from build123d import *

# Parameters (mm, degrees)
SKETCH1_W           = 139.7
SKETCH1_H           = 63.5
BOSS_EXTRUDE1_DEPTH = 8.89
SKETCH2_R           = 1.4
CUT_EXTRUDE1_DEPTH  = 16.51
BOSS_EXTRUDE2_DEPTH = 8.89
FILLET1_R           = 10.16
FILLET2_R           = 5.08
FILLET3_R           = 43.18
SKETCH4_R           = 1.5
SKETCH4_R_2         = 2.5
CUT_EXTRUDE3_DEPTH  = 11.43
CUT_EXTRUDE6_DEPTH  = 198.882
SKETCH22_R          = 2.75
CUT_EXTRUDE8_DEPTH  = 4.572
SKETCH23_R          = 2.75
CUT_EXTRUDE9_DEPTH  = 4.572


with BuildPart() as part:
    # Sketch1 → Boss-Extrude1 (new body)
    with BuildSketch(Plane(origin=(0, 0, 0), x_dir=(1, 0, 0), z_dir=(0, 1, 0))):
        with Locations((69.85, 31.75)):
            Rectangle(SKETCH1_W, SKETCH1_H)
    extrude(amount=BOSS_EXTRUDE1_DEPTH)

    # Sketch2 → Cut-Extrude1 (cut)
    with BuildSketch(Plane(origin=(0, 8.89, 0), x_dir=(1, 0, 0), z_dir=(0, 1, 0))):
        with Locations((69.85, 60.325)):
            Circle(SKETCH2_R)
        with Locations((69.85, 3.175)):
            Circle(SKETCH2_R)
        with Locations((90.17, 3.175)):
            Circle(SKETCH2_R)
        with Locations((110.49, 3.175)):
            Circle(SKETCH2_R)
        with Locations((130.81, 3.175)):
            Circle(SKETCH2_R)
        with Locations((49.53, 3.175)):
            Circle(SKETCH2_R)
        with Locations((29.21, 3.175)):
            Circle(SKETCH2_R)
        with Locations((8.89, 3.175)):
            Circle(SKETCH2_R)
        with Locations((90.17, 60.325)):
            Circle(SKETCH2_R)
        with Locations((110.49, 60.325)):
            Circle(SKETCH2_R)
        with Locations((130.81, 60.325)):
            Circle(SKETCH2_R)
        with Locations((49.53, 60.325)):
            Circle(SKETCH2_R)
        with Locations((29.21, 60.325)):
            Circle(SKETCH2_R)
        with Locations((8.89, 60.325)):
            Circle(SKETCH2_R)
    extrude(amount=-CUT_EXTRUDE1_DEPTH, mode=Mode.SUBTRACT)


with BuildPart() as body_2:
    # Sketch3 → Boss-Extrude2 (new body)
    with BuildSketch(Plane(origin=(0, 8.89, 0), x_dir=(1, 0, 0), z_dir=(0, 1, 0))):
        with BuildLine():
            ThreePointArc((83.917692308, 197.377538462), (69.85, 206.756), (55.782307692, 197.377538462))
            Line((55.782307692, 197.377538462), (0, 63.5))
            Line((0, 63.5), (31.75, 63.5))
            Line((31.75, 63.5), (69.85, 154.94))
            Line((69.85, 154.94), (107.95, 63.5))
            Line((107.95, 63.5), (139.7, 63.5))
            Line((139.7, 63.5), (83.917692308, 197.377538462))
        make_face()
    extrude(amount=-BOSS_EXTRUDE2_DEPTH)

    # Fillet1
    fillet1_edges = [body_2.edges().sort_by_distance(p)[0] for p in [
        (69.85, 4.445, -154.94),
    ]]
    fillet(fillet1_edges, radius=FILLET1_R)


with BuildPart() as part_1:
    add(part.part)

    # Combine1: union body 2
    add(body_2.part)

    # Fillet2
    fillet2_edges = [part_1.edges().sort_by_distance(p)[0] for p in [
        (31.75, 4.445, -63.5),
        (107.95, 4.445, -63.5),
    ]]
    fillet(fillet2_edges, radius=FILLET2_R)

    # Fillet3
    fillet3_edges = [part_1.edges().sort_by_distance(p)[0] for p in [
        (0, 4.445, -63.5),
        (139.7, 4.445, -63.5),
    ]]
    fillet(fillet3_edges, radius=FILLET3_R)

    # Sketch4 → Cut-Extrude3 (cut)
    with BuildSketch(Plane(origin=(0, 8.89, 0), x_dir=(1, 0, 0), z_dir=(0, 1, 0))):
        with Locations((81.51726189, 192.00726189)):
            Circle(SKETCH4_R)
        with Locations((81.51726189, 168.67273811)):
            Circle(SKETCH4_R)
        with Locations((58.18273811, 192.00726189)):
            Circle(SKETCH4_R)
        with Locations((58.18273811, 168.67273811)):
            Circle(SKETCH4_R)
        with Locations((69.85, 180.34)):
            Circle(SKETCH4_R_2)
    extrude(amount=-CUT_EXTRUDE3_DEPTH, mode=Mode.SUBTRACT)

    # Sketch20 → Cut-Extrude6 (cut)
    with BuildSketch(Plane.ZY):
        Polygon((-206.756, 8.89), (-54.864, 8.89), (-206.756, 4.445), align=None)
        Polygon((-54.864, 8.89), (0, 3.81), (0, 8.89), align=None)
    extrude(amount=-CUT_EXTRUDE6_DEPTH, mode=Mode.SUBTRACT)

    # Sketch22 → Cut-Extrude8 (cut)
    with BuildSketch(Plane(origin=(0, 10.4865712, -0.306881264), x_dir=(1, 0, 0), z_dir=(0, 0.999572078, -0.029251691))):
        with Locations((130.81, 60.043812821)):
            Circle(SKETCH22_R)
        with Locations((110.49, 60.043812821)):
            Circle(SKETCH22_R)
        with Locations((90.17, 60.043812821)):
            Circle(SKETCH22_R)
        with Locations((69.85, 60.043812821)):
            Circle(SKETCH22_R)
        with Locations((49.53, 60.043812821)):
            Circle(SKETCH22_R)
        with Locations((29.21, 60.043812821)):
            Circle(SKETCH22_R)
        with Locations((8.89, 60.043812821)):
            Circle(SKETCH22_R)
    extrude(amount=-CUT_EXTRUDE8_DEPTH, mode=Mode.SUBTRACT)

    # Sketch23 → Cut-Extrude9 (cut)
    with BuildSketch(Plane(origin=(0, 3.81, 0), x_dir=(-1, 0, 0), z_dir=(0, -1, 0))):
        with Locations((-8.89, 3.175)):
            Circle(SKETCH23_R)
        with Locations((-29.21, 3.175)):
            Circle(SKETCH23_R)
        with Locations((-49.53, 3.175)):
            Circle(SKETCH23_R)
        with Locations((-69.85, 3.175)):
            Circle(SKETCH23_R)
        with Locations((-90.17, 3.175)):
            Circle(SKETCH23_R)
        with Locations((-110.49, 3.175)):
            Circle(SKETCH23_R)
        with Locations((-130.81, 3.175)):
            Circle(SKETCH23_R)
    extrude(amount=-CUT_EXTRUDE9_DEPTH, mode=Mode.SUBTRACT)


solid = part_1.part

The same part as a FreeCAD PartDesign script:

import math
import FreeCAD as App
import Part
import Sketcher

V = App.Vector
Q = App.Units.Quantity


def edges_at(feature, points):
    """Names of the edges that pass closest to the given points."""
    edges = feature.Shape.Edges
    near = lambda p: min(range(len(edges)), key=lambda i: edges[i].distToShape(Part.Vertex(*p))[0])
    return sorted({f"Edge{near(p) + 1}" for p in points})


def add_polygon(sketch, points):
    """Adds a closed chain of lines whose ends are joined by coincident constraints."""
    first, n = sketch.GeometryCount, len(points)
    for a, b in zip(points, points[1:] + points[:1]):
        sketch.addGeometry(Part.LineSegment(App.Vector(*a, 0), App.Vector(*b, 0)), False)
    for i in range(n):
        sketch.addConstraint(Sketcher.Constraint("Coincident", first + i, 2, first + (i + 1) % n, 1))

doc = App.newDocument("Part")
body = doc.addObject("PartDesign::Body", "Body")

sketch1 = body.newObject("Sketcher::SketchObject", "Sketch")
sketch1.AttachmentSupport = (doc.getObject("XZ_Plane"), [""])
sketch1.MapMode = "FlatFace"
add_polygon(sketch1, [(0, -64), (0, 0), (140, 0), (140, -64)])
sketch1.addConstraint([
    Sketcher.Constraint("Vertical", 0),
    Sketcher.Constraint("Horizontal", 1),
    Sketcher.Constraint("Vertical", 2),
    Sketcher.Constraint("Horizontal", 3),
    Sketcher.Constraint("Coincident", 0, 2, -1, 1),
    Sketcher.Constraint("DistanceX", 1, 1, 1, 2, Q("5.5 in")),
    Sketcher.Constraint("DistanceY", 0, 1, 0, 2, Q("2.5 in")),
])
pad1 = body.newObject("PartDesign::Pad", "Pad")
pad1.Profile = sketch1
pad1.Length = Q("0.35 in")
pad1.Reversed = True

sketch2 = body.newObject("Sketcher::SketchObject", "Sketch001")
sketch2.AttachmentSupport = (doc.getObject("XZ_Plane"), [""])
sketch2.MapMode = "FlatFace"
sketch2.AttachmentOffset = App.Placement(V(0, 0, -0.35 * 25.4), App.Rotation())
sketch2.addGeometry([
    Part.Circle(V(69.8, -60.3, 0), V(0, 0, 1), 1.4),
    Part.Circle(V(69.8, -3.2, 0), V(0, 0, 1), 1.4),
    Part.Circle(V(90.2, -3.2, 0), V(0, 0, 1), 1.4),
    Part.Circle(V(110.5, -3.2, 0), V(0, 0, 1), 1.4),
    Part.Circle(V(130.8, -3.2, 0), V(0, 0, 1), 1.4),
    Part.Circle(V(49.5, -3.2, 0), V(0, 0, 1), 1.4),
    Part.Circle(V(29.2, -3.2, 0), V(0, 0, 1), 1.4),
    Part.Circle(V(8.9, -3.2, 0), V(0, 0, 1), 1.4),
    Part.Circle(V(90.2, -60.3, 0), V(0, 0, 1), 1.4),
    Part.Circle(V(110.5, -60.3, 0), V(0, 0, 1), 1.4),
    Part.Circle(V(130.8, -60.3, 0), V(0, 0, 1), 1.4),
    Part.Circle(V(49.5, -60.3, 0), V(0, 0, 1), 1.4),
    Part.Circle(V(29.2, -60.3, 0), V(0, 0, 1), 1.4),
    Part.Circle(V(8.9, -60.3, 0), V(0, 0, 1), 1.4),
], False)
sketch2.addConstraint([
    Sketcher.Constraint("Equal", 0, 1),
    Sketcher.Constraint("Equal", 1, 2),
    Sketcher.Constraint("Equal", 2, 3),
    Sketcher.Constraint("Equal", 3, 4),
    Sketcher.Constraint("Equal", 4, 5),
    Sketcher.Constraint("Equal", 5, 6),
    Sketcher.Constraint("Equal", 6, 7),
    Sketcher.Constraint("Equal", 7, 8),
    Sketcher.Constraint("Equal", 8, 9),
    Sketcher.Constraint("Equal", 9, 10),
    Sketcher.Constraint("Equal", 10, 11),
    Sketcher.Constraint("Equal", 11, 12),
    Sketcher.Constraint("Equal", 12, 13),
    Sketcher.Constraint("Horizontal", 1, 3, 2, 3),
    Sketcher.Constraint("Horizontal", 2, 3, 3, 3),
    Sketcher.Constraint("Horizontal", 3, 3, 4, 3),
    Sketcher.Constraint("Horizontal", 4, 3, 5, 3),
    Sketcher.Constraint("Horizontal", 5, 3, 6, 3),
    Sketcher.Constraint("Horizontal", 6, 3, 7, 3),
    Sketcher.Constraint("Horizontal", 0, 3, 8, 3),
    Sketcher.Constraint("Horizontal", 8, 3, 9, 3),
    Sketcher.Constraint("Horizontal", 9, 3, 10, 3),
    Sketcher.Constraint("Horizontal", 10, 3, 11, 3),
    Sketcher.Constraint("Horizontal", 11, 3, 12, 3),
    Sketcher.Constraint("Horizontal", 12, 3, 13, 3),
    Sketcher.Constraint("Vertical", 0, 3, 1, 3),
    Sketcher.Constraint("Vertical", 2, 3, 8, 3),
    Sketcher.Constraint("Vertical", 3, 3, 9, 3),
    Sketcher.Constraint("Vertical", 4, 3, 10, 3),
    Sketcher.Constraint("Vertical", 5, 3, 11, 3),
    Sketcher.Constraint("Vertical", 6, 3, 12, 3),
    Sketcher.Constraint("Vertical", 7, 3, 13, 3),
    Sketcher.Constraint("DistanceX", 1, 3, 2, 3, Q("0.8 in")),
    Sketcher.Constraint("DistanceX", 2, 3, 3, 3, Q("0.8 in")),
    Sketcher.Constraint("DistanceX", 3, 3, 4, 3, Q("0.8 in")),
    Sketcher.Constraint("DistanceX", 5, 3, 1, 3, Q("0.8 in")),
    Sketcher.Constraint("DistanceX", 6, 3, 5, 3, Q("0.8 in")),
    Sketcher.Constraint("DistanceX", 7, 3, 6, 3, Q("0.8 in")),
    Sketcher.Constraint("Diameter", 0, Q("2.8 mm")),
    Sketcher.Constraint("DistanceX", -1, 1, 0, 3, Q("2.75 in")),
    Sketcher.Constraint("DistanceY", 0, 3, 1, 3, Q("2.25 in")),
    Sketcher.Constraint("DistanceY", 0, 3, -1, 1, Q("2.375 in")),
])
pocket1 = body.newObject("PartDesign::Pocket", "Pocket")
pocket1.Profile = sketch2
pocket1.Length = Q("0.65 in")
pocket1.Reversed = True
body2 = doc.addObject("PartDesign::Body", "Body001")

sketch3 = body2.newObject("Sketcher::SketchObject", "Sketch002")
sketch3.AttachmentSupport = (doc.getObject("XZ_Plane001"), [""])
sketch3.MapMode = "FlatFace"
sketch3.AttachmentOffset = App.Placement(V(0, 0, -0.35 * 25.4), App.Rotation())
sketch3.addGeometry([
    Part.ArcOfCircle(Part.Circle(V(70, -192, 0), V(0, 0, 1), 15), math.radians(-157), math.radians(-23)),
    Part.LineSegment(V(56, -197, 0), V(0, -64, 0)),
    Part.LineSegment(V(0, -64, 0), V(32, -64, 0)),
    Part.LineSegment(V(32, -64, 0), V(70, -155, 0)),
    Part.LineSegment(V(70, -155, 0), V(108, -64, 0)),
    Part.LineSegment(V(108, -64, 0), V(140, -64, 0)),
    Part.LineSegment(V(140, -64, 0), V(84, -197, 0)),
], False)
sketch3.addConstraint([
    Sketcher.Constraint("Tangent", 0, 1, 1, 1),
    Sketcher.Constraint("Coincident", 1, 2, 2, 1),
    Sketcher.Constraint("Coincident", 2, 2, 3, 1),
    Sketcher.Constraint("Coincident", 3, 2, 4, 1),
    Sketcher.Constraint("Coincident", 4, 2, 5, 1),
    Sketcher.Constraint("Coincident", 5, 2, 6, 1),
    Sketcher.Constraint("Tangent", 6, 2, 0, 2),
    Sketcher.Constraint("Horizontal", 2),
    Sketcher.Constraint("Horizontal", 5),
    Sketcher.Constraint("PointOnObject", 1, 2, -2),
    Sketcher.Constraint("Parallel", 1, 3),
    Sketcher.Constraint("Parallel", 4, 6),
    Sketcher.Constraint("Horizontal", 2, 2, 4, 2),
    Sketcher.Constraint("Horizontal", 0, 1, 6, 2),
    Sketcher.Constraint("Vertical", 0, 3, 3, 2),
    Sketcher.Constraint("Radius", 0, Q("0.6 in")),
    Sketcher.Constraint("DistanceX", 2, 2, 4, 2, Q("3 in")),
    Sketcher.Constraint("Distance", 3, Q("3.9 in")),
    Sketcher.Constraint("DistanceX", 2, 1, 2, 2, Q("1.25 in")),
    Sketcher.Constraint("DistanceY", 1, 2, -1, 1, Q("2.5 in")),
])
pad2 = body2.newObject("PartDesign::Pad", "Pad001")
pad2.Profile = sketch3
pad2.Length = Q("0.35 in")
doc.recompute()

fillet = body2.newObject("PartDesign::Fillet", "Fillet")
fillet.Base = (pad2, edges_at(pad2, [(69.85, 4.445, -154.94)]))
fillet.Radius = Q("0.4 in")
doc.recompute()

boolean = body.newObject("PartDesign::Boolean", "Boolean")
boolean.Type = "Fuse"
boolean.addObjects([body2])
doc.recompute()

fillet2 = body.newObject("PartDesign::Fillet", "Fillet001")
fillet2.Base = (boolean, edges_at(boolean, [(31.75, 4.445, -63.5), (107.95, 4.445, -63.5)]))
fillet2.Radius = Q("0.2 in")
doc.recompute()

fillet3 = body.newObject("PartDesign::Fillet", "Fillet002")
fillet3.Base = (fillet2, edges_at(fillet2, [(0, 4.445, -63.5), (139.7, 4.445, -63.5)]))
fillet3.Radius = Q("1.7 in")

sketch4 = body.newObject("Sketcher::SketchObject", "Sketch003")
sketch4.AttachmentSupport = (doc.getObject("XZ_Plane"), [""])
sketch4.MapMode = "FlatFace"
sketch4.AttachmentOffset = App.Placement(V(0, 0, -0.35 * 25.4), App.Rotation())
sketch4.addGeometry([
    Part.Circle(V(81.5, -192, 0), V(0, 0, 1), 1.5),
    Part.Circle(V(81.5, -168.7, 0), V(0, 0, 1), 1.5),
    Part.Circle(V(58.2, -192, 0), V(0, 0, 1), 1.5),
    Part.Circle(V(58.2, -168.7, 0), V(0, 0, 1), 1.5),
    Part.Circle(V(69.8, -180.3, 0), V(0, 0, 1), 2.5),
], False)
sketch4.addConstraint([
    Sketcher.Constraint("Equal", 0, 1),
    Sketcher.Constraint("Equal", 1, 2),
    Sketcher.Constraint("Equal", 2, 3),
    Sketcher.Constraint("Horizontal", 0, 3, 2, 3),
    Sketcher.Constraint("Horizontal", 1, 3, 3, 3),
    Sketcher.Constraint("Vertical", 0, 3, 1, 3),
    Sketcher.Constraint("Vertical", 2, 3, 3, 3),
    Sketcher.Constraint("DistanceY", 4, 3, -1, 1, Q("7.1 in")),
    Sketcher.Constraint("Diameter", 0, Q("3 mm")),
    Sketcher.Constraint("Diameter", 4, Q("5 mm")),
    Sketcher.Constraint("DistanceX", -1, 1, 4, 3, Q("2.75 in")),
    Sketcher.Constraint("DistanceX", -1, 1, 0, 3, Q("81.517262 mm")),
    Sketcher.Constraint("DistanceY", 0, 3, -1, 1, Q("192.007262 mm")),
    Sketcher.Constraint("DistanceY", 1, 3, -1, 1, Q("168.672738 mm")),
    Sketcher.Constraint("DistanceX", -1, 1, 2, 3, Q("58.182738 mm")),
])
pocket2 = body.newObject("PartDesign::Pocket", "Pocket001")
pocket2.Profile = sketch4
pocket2.Length = Q("0.45 in")
pocket2.Reversed = True

sketch5 = body.newObject("Sketcher::SketchObject", "Sketch004")
sketch5.AttachmentSupport = (doc.getObject("YZ_Plane"), [""])
sketch5.MapMode = "FlatFace"
add_polygon(sketch5, [(8.9, -54.9), (8.9, -206.8), (4.4, -206.8)])
add_polygon(sketch5, [(8.9, -54.9), (3.8, 0), (8.9, 0)])
sketch5.addConstraint([
    Sketcher.Constraint("Vertical", 0),
    Sketcher.Constraint("Horizontal", 1),
    Sketcher.Constraint("Horizontal", 4),
    Sketcher.Constraint("Vertical", 5),
    Sketcher.Constraint("Coincident", 5, 2, 2, 2),
    Sketcher.Constraint("PointOnObject", 3, 2, -1),
    Sketcher.Constraint("DistanceX", 4, 1, 4, 2, Q("0.2 in")),
    Sketcher.Constraint("DistanceY", 0, 2, 0, 1, Q("5.98 in")),
    Sketcher.Constraint("DistanceY", 5, 2, 5, 1, Q("2.16 in")),
    Sketcher.Constraint("DistanceX", 1, 2, 1, 1, Q("0.175 in")),
    Sketcher.Constraint("DistanceX", -1, 1, 0, 2, Q("0.35 in")),
])
pocket3 = body.newObject("PartDesign::Pocket", "Pocket002")
pocket3.Profile = sketch5
pocket3.Length = Q("7.83 in")
pocket3.Reversed = True

sketch6 = body.newObject("Sketcher::SketchObject", "Sketch005")
sketch6.Placement = App.Placement(V(0, 10.486571, -0.306881), App.Rotation(V(1, 0, 0), V(0, -0.029251691, -0.999572078), V(0, 0.999572078, -0.029251691), "ZXY"))
sketch6.addGeometry([
    Part.Circle(V(130.8, 60, 0), V(0, 0, 1), 2.8),
    Part.Circle(V(110.5, 60, 0), V(0, 0, 1), 2.8),
    Part.Circle(V(90.2, 60, 0), V(0, 0, 1), 2.8),
    Part.Circle(V(69.8, 60, 0), V(0, 0, 1), 2.8),
    Part.Circle(V(49.5, 60, 0), V(0, 0, 1), 2.8),
    Part.Circle(V(29.2, 60, 0), V(0, 0, 1), 2.8),
    Part.Circle(V(8.9, 60, 0), V(0, 0, 1), 2.8),
], False)
sketch6.addConstraint([
    Sketcher.Constraint("Equal", 0, 1),
    Sketcher.Constraint("Equal", 1, 2),
    Sketcher.Constraint("Equal", 2, 3),
    Sketcher.Constraint("Equal", 3, 4),
    Sketcher.Constraint("Equal", 4, 5),
    Sketcher.Constraint("Equal", 5, 6),
    Sketcher.Constraint("Horizontal", 0, 3, 1, 3),
    Sketcher.Constraint("Horizontal", 1, 3, 2, 3),
    Sketcher.Constraint("Horizontal", 2, 3, 3, 3),
    Sketcher.Constraint("Horizontal", 3, 3, 4, 3),
    Sketcher.Constraint("Horizontal", 4, 3, 5, 3),
    Sketcher.Constraint("Horizontal", 5, 3, 6, 3),
    Sketcher.Constraint("DistanceX", 5, 3, 0, 3, Q("4 in")),
    Sketcher.Constraint("DistanceX", 6, 3, 1, 3, Q("4 in")),
    Sketcher.Constraint("DistanceX", 1, 3, 0, 3, Q("0.8 in")),
    Sketcher.Constraint("DistanceX", 2, 3, 1, 3, Q("0.8 in")),
    Sketcher.Constraint("DistanceX", 3, 3, 2, 3, Q("0.8 in")),
    Sketcher.Constraint("DistanceX", 4, 3, 3, 3, Q("0.8 in")),
    Sketcher.Constraint("Diameter", 0, Q("5.5 mm")),
    Sketcher.Constraint("DistanceX", -1, 1, 0, 3, Q("5.15 in")),
    Sketcher.Constraint("DistanceY", -1, 1, 0, 3, Q("60.043813 mm")),
])
pocket4 = body.newObject("PartDesign::Pocket", "Pocket003")
pocket4.Profile = sketch6
pocket4.Length = Q("0.18 in")

sketch7 = body.newObject("Sketcher::SketchObject", "Sketch006")
sketch7.AttachmentSupport = (doc.getObject("XZ_Plane"), [""])
sketch7.MapMode = "FlatFace"
sketch7.AttachmentOffset = App.Placement(V(0, 0, -0.15 * 25.4), App.Rotation())
sketch7.addGeometry([
    Part.Circle(V(8.9, -3.2, 0), V(0, 0, 1), 2.8),
    Part.Circle(V(29.2, -3.2, 0), V(0, 0, 1), 2.8),
    Part.Circle(V(49.5, -3.2, 0), V(0, 0, 1), 2.8),
    Part.Circle(V(69.8, -3.2, 0), V(0, 0, 1), 2.8),
    Part.Circle(V(90.2, -3.2, 0), V(0, 0, 1), 2.8),
    Part.Circle(V(110.5, -3.2, 0), V(0, 0, 1), 2.8),
    Part.Circle(V(130.8, -3.2, 0), V(0, 0, 1), 2.8),
], False)
sketch7.addConstraint([
    Sketcher.Constraint("Equal", 0, 1),
    Sketcher.Constraint("Equal", 1, 2),
    Sketcher.Constraint("Equal", 2, 3),
    Sketcher.Constraint("Equal", 3, 4),
    Sketcher.Constraint("Equal", 4, 5),
    Sketcher.Constraint("Equal", 5, 6),
    Sketcher.Constraint("Horizontal", 0, 3, 1, 3),
    Sketcher.Constraint("Horizontal", 1, 3, 2, 3),
    Sketcher.Constraint("Horizontal", 2, 3, 3, 3),
    Sketcher.Constraint("Horizontal", 3, 3, 4, 3),
    Sketcher.Constraint("Horizontal", 4, 3, 5, 3),
    Sketcher.Constraint("Horizontal", 5, 3, 6, 3),
    Sketcher.Constraint("DistanceX", 0, 3, 5, 3, Q("4 in")),
    Sketcher.Constraint("DistanceX", 1, 3, 6, 3, Q("4 in")),
    Sketcher.Constraint("DistanceX", 0, 3, 1, 3, Q("0.8 in")),
    Sketcher.Constraint("DistanceX", 1, 3, 2, 3, Q("0.8 in")),
    Sketcher.Constraint("DistanceX", 2, 3, 3, 3, Q("0.8 in")),
    Sketcher.Constraint("DistanceX", 3, 3, 4, 3, Q("0.8 in")),
    Sketcher.Constraint("Diameter", 0, Q("5.5 mm")),
    Sketcher.Constraint("DistanceX", -1, 1, 0, 3, Q("0.35 in")),
    Sketcher.Constraint("DistanceY", 0, 3, -1, 1, Q("0.125 in")),
])
pocket5 = body.newObject("PartDesign::Pocket", "Pocket004")
pocket5.Profile = sketch7
pocket5.Length = Q("0.18 in")

doc.recompute()
